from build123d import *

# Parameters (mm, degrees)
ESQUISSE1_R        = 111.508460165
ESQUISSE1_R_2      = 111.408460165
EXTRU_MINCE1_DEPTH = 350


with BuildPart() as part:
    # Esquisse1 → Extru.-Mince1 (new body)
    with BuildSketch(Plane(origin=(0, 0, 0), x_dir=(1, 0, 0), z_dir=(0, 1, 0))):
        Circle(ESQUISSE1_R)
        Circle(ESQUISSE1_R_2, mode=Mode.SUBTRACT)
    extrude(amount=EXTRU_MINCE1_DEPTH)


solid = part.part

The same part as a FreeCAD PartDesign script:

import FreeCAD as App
import Part
import Sketcher

V = App.Vector
Q = App.Units.Quantity

doc = App.newDocument("Part")
body = doc.addObject("PartDesign::Body", "Body")

# Sketch on XZ plane
sketch1 = body.newObject("Sketcher::SketchObject", "Sketch")
sketch1.AttachmentSupport = (doc.getObject("XZ_Plane"), [""])
sketch1.MapMode = "FlatFace"
sketch1.addGeometry(Part.Circle(V(0, 0, 0), V(0, 0, 1), 112), False)
sketch1.addGeometry(Part.Circle(V(0, 0, 0), V(0, 0, 1), 111), False)
sketch1.addConstraint(Sketcher.Constraint("Coincident", 0, 3, -1, 1))
sketch1.addConstraint(Sketcher.Constraint("Coincident", 1, 3, -1, 1))
sketch1.addConstraint(Sketcher.Constraint("Diameter", 0, Q("223.01692 mm")))
sketch1.addConstraint(Sketcher.Constraint("Diameter", 1, Q("222.81692 mm")))
pad1 = body.newObject("PartDesign::Pad", "Pad")
pad1.Profile = sketch1
pad1.Length = 350
pad1.Reversed = True

doc.recompute()
